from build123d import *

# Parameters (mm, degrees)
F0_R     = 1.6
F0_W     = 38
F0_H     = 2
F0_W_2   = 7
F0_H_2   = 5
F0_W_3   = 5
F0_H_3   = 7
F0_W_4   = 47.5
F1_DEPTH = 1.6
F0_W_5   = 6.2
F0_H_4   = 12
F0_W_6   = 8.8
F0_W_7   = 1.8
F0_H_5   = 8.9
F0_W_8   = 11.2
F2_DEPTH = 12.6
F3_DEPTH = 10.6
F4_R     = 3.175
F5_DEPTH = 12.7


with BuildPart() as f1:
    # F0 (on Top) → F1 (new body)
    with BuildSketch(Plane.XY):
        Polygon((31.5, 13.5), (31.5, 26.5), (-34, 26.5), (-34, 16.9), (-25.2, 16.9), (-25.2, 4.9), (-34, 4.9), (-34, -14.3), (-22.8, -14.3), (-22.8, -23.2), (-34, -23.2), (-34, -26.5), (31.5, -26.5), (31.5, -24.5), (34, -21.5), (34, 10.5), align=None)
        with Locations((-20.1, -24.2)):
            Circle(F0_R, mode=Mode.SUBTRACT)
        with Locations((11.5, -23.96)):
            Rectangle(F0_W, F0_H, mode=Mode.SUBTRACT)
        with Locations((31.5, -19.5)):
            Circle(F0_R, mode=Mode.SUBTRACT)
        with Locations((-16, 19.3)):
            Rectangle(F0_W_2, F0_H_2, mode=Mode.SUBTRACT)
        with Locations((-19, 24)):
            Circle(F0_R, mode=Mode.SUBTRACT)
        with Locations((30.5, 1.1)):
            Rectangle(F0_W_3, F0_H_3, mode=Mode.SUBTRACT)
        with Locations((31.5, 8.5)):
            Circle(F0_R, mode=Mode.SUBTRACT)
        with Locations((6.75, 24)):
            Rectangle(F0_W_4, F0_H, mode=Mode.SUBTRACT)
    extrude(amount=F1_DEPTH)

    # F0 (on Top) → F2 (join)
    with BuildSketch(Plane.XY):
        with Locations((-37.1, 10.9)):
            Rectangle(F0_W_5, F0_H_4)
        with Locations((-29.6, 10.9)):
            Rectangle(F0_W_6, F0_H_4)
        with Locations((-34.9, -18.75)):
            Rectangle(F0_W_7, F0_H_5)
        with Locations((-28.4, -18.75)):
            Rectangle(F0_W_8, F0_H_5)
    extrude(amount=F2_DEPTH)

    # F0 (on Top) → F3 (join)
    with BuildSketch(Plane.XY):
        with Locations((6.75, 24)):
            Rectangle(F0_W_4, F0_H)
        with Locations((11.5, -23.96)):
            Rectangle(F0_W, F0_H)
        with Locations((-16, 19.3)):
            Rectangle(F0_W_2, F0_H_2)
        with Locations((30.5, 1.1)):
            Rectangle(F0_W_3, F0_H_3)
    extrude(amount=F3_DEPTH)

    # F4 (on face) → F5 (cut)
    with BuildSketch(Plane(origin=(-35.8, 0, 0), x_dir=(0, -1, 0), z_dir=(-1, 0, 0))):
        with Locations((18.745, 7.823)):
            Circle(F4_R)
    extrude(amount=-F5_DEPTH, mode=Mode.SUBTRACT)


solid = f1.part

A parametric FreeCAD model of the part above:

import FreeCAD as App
import Part
import Sketcher

V = App.Vector
Q = App.Units.Quantity

doc = App.newDocument("Part")
body = doc.addObject("PartDesign::Body", "Body")

# Sketch on XY plane
sketch1 = body.newObject("Sketcher::SketchObject", "Sketch")
sketch1.AttachmentSupport = (doc.getObject("XY_Plane"), [""])
sketch1.MapMode = "FlatFace"
sketch1.addGeometry(Part.LineSegment(V(31.5, 13.5, 0), V(31.5, 26.5, 0)), False)
sketch1.addGeometry(Part.LineSegment(V(31.5, 26.5, 0), V(-34, 26.5, 0)), False)
sketch1.addGeometry(Part.LineSegment(V(-34, 26.5, 0), V(-34, 16.9, 0)), False)
sketch1.addGeometry(Part.LineSegment(V(-34, 16.9, 0), V(-25.2, 16.9, 0)), False)
sketch1.addGeometry(Part.LineSegment(V(-25.2, 16.9, 0), V(-25.2, 4.9, 0)), False)
sketch1.addGeometry(Part.LineSegment(V(-25.2, 4.9, 0), V(-34, 4.9, 0)), False)
sketch1.addGeometry(Part.LineSegment(V(-34, 4.9, 0), V(-34, -14.3, 0)), False)
sketch1.addGeometry(Part.LineSegment(V(-34, -14.3, 0), V(-22.8, -14.3, 0)), False)
sketch1.addGeometry(Part.LineSegment(V(-22.8, -14.3, 0), V(-22.8, -23.2, 0)), False)
sketch1.addGeometry(Part.LineSegment(V(-22.8, -23.2, 0), V(-34, -23.2, 0)), False)
sketch1.addGeometry(Part.LineSegment(V(-34, -23.2, 0), V(-34, -26.5, 0)), False)
sketch1.addGeometry(Part.LineSegment(V(-34, -26.5, 0), V(31.5, -26.5, 0)), False)
sketch1.addGeometry(Part.LineSegment(V(31.5, -26.5, 0), V(31.5, -24.5, 0)), False)
sketch1.addGeometry(Part.LineSegment(V(31.5, -24.5, 0), V(34, -21.5, 0)), False)
sketch1.addGeometry(Part.LineSegment(V(34, -21.5, 0), V(34, 10.5, 0)), False)
sketch1.addGeometry(Part.LineSegment(V(34, 10.5, 0), V(31.5, 13.5, 0)), False)
sketch1.addGeometry(Part.Circle(V(-20.1, -24.2, 0), V(0, 0, 1), 1.6), False)
sketch1.addGeometry(Part.LineSegment(V(30.5, -25, 0), V(-7.5, -25, 0)), False)
sketch1.addGeometry(Part.LineSegment(V(-7.5, -25, 0), V(-7.5, -23, 0)), False)
sketch1.addGeometry(Part.LineSegment(V(-7.5, -23, 0), V(30.5, -23, 0)), False)
sketch1.addGeometry(Part.LineSegment(V(30.5, -23, 0), V(30.5, -25, 0)), False)
sketch1.addGeometry(Part.Circle(V(31.5, -19.5, 0), V(0, 0, 1), 1.6), False)
sketch1.addGeometry(Part.LineSegment(V(-12.5, 16.8, 0), V(-19.5, 16.8, 0)), False)
sketch1.addGeometry(Part.LineSegment(V(-19.5, 16.8, 0), V(-19.5, 21.8, 0)), False)
sketch1.addGeometry(Part.LineSegment(V(-19.5, 21.8, 0), V(-12.5, 21.8, 0)), False)
sketch1.addGeometry(Part.LineSegment(V(-12.5, 21.8, 0), V(-12.5, 16.8, 0)), False)
sketch1.addGeometry(Part.Circle(V(-19, 24, 0), V(0, 0, 1), 1.6), False)
sketch1.addGeometry(Part.LineSegment(V(33, -2.4, 0), V(28, -2.4, 0)), False)
sketch1.addGeometry(Part.LineSegment(V(28, -2.4, 0), V(28, 4.6, 0)), False)
sketch1.addGeometry(Part.LineSegment(V(28, 4.6, 0), V(33, 4.6, 0)), False)
sketch1.addGeometry(Part.LineSegment(V(33, 4.6, 0), V(33, -2.4, 0)), False)
sketch1.addGeometry(Part.Circle(V(31.5, 8.5, 0), V(0, 0, 1), 1.6), False)
sketch1.addGeometry(Part.LineSegment(V(30.5, 23, 0), V(-17, 23, 0)), False)
sketch1.addGeometry(Part.LineSegment(V(-17, 23, 0), V(-17, 25, 0)), False)
sketch1.addGeometry(Part.LineSegment(V(-17, 25, 0), V(30.5, 25, 0)), False)
sketch1.addGeometry(Part.LineSegment(V(30.5, 25, 0), V(30.5, 23, 0)), False)
sketch1.addConstraint(Sketcher.Constraint("Coincident", 0, 2, 1, 1))
sketch1.addConstraint(Sketcher.Constraint("Coincident", 1, 2, 2, 1))
sketch1.addConstraint(Sketcher.Constraint("Coincident", 2, 2, 3, 1))
sketch1.addConstraint(Sketcher.Constraint("Coincident", 3, 2, 4, 1))
sketch1.addConstraint(Sketcher.Constraint("Coincident", 4, 2, 5, 1))
sketch1.addConstraint(Sketcher.Constraint("Coincident", 5, 2, 6, 1))
sketch1.addConstraint(Sketcher.Constraint("Coincident", 6, 2, 7, 1))
sketch1.addConstraint(Sketcher.Constraint("Coincident", 7, 2, 8, 1))
sketch1.addConstraint(Sketcher.Constraint("Coincident", 8, 2, 9, 1))
sketch1.addConstraint(Sketcher.Constraint("Coincident", 9, 2, 10, 1))
sketch1.addConstraint(Sketcher.Constraint("Coincident", 10, 2, 11, 1))
sketch1.addConstraint(Sketcher.Constraint("Coincident", 11, 2, 12, 1))
sketch1.addConstraint(Sketcher.Constraint("Coincident", 12, 2, 13, 1))
sketch1.addConstraint(Sketcher.Constraint("Coincident", 13, 2, 14, 1))
sketch1.addConstraint(Sketcher.Constraint("Coincident", 14, 2, 15, 1))
sketch1.addConstraint(Sketcher.Constraint("Coincident", 15, 2, 0, 1))
sketch1.addConstraint(Sketcher.Constraint("Coincident", 17, 2, 18, 1))
sketch1.addConstraint(Sketcher.Constraint("Coincident", 18, 2, 19, 1))
sketch1.addConstraint(Sketcher.Constraint("Coincident", 19, 2, 20, 1))
sketch1.addConstraint(Sketcher.Constraint("Coincident", 20, 2, 17, 1))
sketch1.addConstraint(Sketcher.Constraint("Coincident", 22, 2, 23, 1))
sketch1.addConstraint(Sketcher.Constraint("Coincident", 23, 2, 24, 1))
sketch1.addConstraint(Sketcher.Constraint("Coincident", 24, 2, 25, 1))
sketch1.addConstraint(Sketcher.Constraint("Coincident", 25, 2, 22, 1))
sketch1.addConstraint(Sketcher.Constraint("Coincident", 27, 2, 28, 1))
sketch1.addConstraint(Sketcher.Constraint("Coincident", 28, 2, 29, 1))
sketch1.addConstraint(Sketcher.Constraint("Coincident", 29, 2, 30, 1))
sketch1.addConstraint(Sketcher.Constraint("Coincident", 30, 2, 27, 1))
sketch1.addConstraint(Sketcher.Constraint("Coincident", 32, 2, 33, 1))
sketch1.addConstraint(Sketcher.Constraint("Coincident", 33, 2, 34, 1))
sketch1.addConstraint(Sketcher.Constraint("Coincident", 34, 2, 35, 1))
sketch1.addConstraint(Sketcher.Constraint("Coincident", 35, 2, 32, 1))
sketch1.addConstraint(Sketcher.Constraint("Vertical", 0))
sketch1.addConstraint(Sketcher.Constraint("Horizontal", 1))
sketch1.addConstraint(Sketcher.Constraint("Vertical", 2))
sketch1.addConstraint(Sketcher.Constraint("Horizontal", 3))
sketch1.addConstraint(Sketcher.Constraint("Vertical", 4))
sketch1.addConstraint(Sketcher.Constraint("Horizontal", 5))
sketch1.addConstraint(Sketcher.Constraint("Vertical", 6))
sketch1.addConstraint(Sketcher.Constraint("Horizontal", 7))
sketch1.addConstraint(Sketcher.Constraint("Vertical", 8))
sketch1.addConstraint(Sketcher.Constraint("Horizontal", 9))
sketch1.addConstraint(Sketcher.Constraint("Vertical", 10))
sketch1.addConstraint(Sketcher.Constraint("Horizontal", 11))
sketch1.addConstraint(Sketcher.Constraint("Vertical", 12))
sketch1.addConstraint(Sketcher.Constraint("Vertical", 14))
sketch1.addConstraint(Sketcher.Constraint("Horizontal", 17))
sketch1.addConstraint(Sketcher.Constraint("Vertical", 18))
sketch1.addConstraint(Sketcher.Constraint("Horizontal", 19))
sketch1.addConstraint(Sketcher.Constraint("Vertical", 20))
sketch1.addConstraint(Sketcher.Constraint("Horizontal", 22))
sketch1.addConstraint(Sketcher.Constraint("Vertical", 23))
sketch1.addConstraint(Sketcher.Constraint("Horizontal", 24))
sketch1.addConstraint(Sketcher.Constraint("Vertical", 25))
sketch1.addConstraint(Sketcher.Constraint("Horizontal", 27))
sketch1.addConstraint(Sketcher.Constraint("Vertical", 28))
sketch1.addConstraint(Sketcher.Constraint("Horizontal", 29))
sketch1.addConstraint(Sketcher.Constraint("Vertical", 30))
sketch1.addConstraint(Sketcher.Constraint("Horizontal", 32))
sketch1.addConstraint(Sketcher.Constraint("Vertical", 33))
sketch1.addConstraint(Sketcher.Constraint("Horizontal", 34))
sketch1.addConstraint(Sketcher.Constraint("Vertical", 35))
sketch1.addConstraint(Sketcher.Constraint("Equal", 16, 21))
sketch1.addConstraint(Sketcher.Constraint("Equal", 21, 26))
sketch1.addConstraint(Sketcher.Constraint("Equal", 26, 31))
sketch1.addConstraint(Sketcher.Constraint("Symmetric", 1, 2, 10, 2, -1))
sketch1.addConstraint(Sketcher.Constraint("Vertical", 21, 3, 31, 3))
sketch1.addConstraint(Sketcher.Constraint("Vertical", 31, 3, 0, 2))
sketch1.addConstraint(Sketcher.Constraint("Vertical", 2, 2, 5, 2))
sketch1.addConstraint(Sketcher.Constraint("Vertical", 0, 2, 11, 2))
sketch1.addConstraint(Sketcher.Constraint("Vertical", 20, 2, 34, 2))
sketch1.addConstraint(Sketcher.Constraint("Equal", 12, 18))
sketch1.addConstraint(Sketcher.Constraint("Equal", 29, 23))
sketch1.addConstraint(Sketcher.Constraint("Equal", 24, 28))
sketch1.addConstraint(Sketcher.Constraint("Equal", 20, 33))
sketch1.addConstraint(Sketcher.Constraint("Equal", 13, 15))
sketch1.addConstraint(Sketcher.Constraint("Diameter", 16, Q("3.2 mm")))
sketch1.addConstraint(Sketcher.Constraint("DistanceX", 17, 2, 17, 1, Q("38 mm")))
sketch1.addConstraint(Sketcher.Constraint("DistanceX", 22, 2, 22, 1, Q("7 mm")))
sketch1.addConstraint(Sketcher.Constraint("DistanceX", 27, 2, 27, 1, Q("5 mm")))
sketch1.addConstraint(Sketcher.Constraint("DistanceY", 0, 1, 0, 2, Q("13 mm")))
sketch1.addConstraint(Sketcher.Constraint("DistanceY", 4, 2, 4, 1, Q("12 mm")))
sketch1.addConstraint(Sketcher.Constraint("DistanceY", 12, 1, 12, 2, Q("2 mm")))
sketch1.addConstraint(Sketcher.Constraint("DistanceY", 14, 1, 14, 2, Q("32 mm")))
sketch1.addConstraint(Sketcher.Constraint("DistanceX", 1, 2, 1, 1, Q("65.5 mm")))
sketch1.addConstraint(Sketcher.Constraint("DistanceX", 3, 1, 3, 2, Q("8.8 mm")))
sketch1.addConstraint(Sketcher.Constraint("DistanceX", 7, 1, 7, 2, Q("11.2 mm")))
sketch1.addConstraint(Sketcher.Constraint("DistanceX", 32, 2, 32, 1, Q("47.5 mm")))
sketch1.addConstraint(Sketcher.Constraint("DistanceY", 2, 2, 2, 1, Q("9.6 mm")))
sketch1.addConstraint(Sketcher.Constraint("DistanceY", 6, 2, 6, 1, Q("19.2 mm")))
sketch1.addConstraint(Sketcher.Constraint("DistanceY", 8, 2, 8, 1, Q("8.9 mm")))
sketch1.addConstraint(Sketcher.Constraint("DistanceY", 10, 2, 10, 1, Q("3.3 mm")))
sketch1.addConstraint(Sketcher.Constraint("DistanceX", 26, 3, -1, 1, Q("19 mm")))
sketch1.addConstraint(Sketcher.Constraint("DistanceY", -1, 1, 26, 3, Q("24 mm")))
sketch1.addConstraint(Sketcher.Constraint("DistanceX", 1, 2, -1, 1, Q("34 mm")))
sketch1.addConstraint(Sketcher.Constraint("DistanceX", -1, 1, 13, 2, Q("34 mm")))
sketch1.addConstraint(Sketcher.Constraint("DistanceX", -1, 1, 27, 2, Q("28 mm")))
sketch1.addConstraint(Sketcher.Constraint("DistanceX", 32, 2, -1, 1, Q("17 mm")))
sketch1.addConstraint(Sketcher.Constraint("DistanceY", -1, 1, 32, 2, Q("23 mm")))
sketch1.addConstraint(Sketcher.Constraint("DistanceY", 21, 3, 31, 3, Q("28 mm")))
sketch1.addConstraint(Sketcher.Constraint("DistanceY", 31, 3, 0, 2, Q("18 mm")))
sketch1.addConstraint(Sketcher.Constraint("DistanceY", 16, 3, 8, 2, Q("1 mm")))
sketch1.addConstraint(Sketcher.Constraint("DistanceX", 16, 3, -1, 1, Q("20.1 mm")))
sketch1.addConstraint(Sketcher.Constraint("DistanceX", 22, 2, -1, 1, Q("19.5 mm")))
sketch1.addConstraint(Sketcher.Constraint("DistanceY", -1, 1, 22, 2, Q("16.8 mm")))
sketch1.addConstraint(Sketcher.Constraint("DistanceY", 27, 2, -1, 1, Q("2.4 mm")))
sketch1.addConstraint(Sketcher.Constraint("DistanceY", 17, 2, -1, 1, Q("24.96 mm")))
pad1 = body.newObject("PartDesign::Pad", "Pad")
pad1.Profile = sketch1
pad1.Length = 1.6

# Sketch on XY plane
sketch2 = body.newObject("Sketcher::SketchObject", "Sketch001")
sketch2.AttachmentSupport = (doc.getObject("XY_Plane"), [""])
sketch2.MapMode = "FlatFace"
sketch2.addGeometry(Part.LineSegment(V(-40, 17, 0), V(-40, 5, 0)), False)
sketch2.addGeometry(Part.LineSegment(V(-40, 5, 0), V(-25, 5, 0)), False)
sketch2.addGeometry(Part.LineSegment(V(-25, 5, 0), V(-25, 17, 0)), False)
sketch2.addGeometry(Part.LineSegment(V(-25, 17, 0), V(-40, 17, 0)), False)
sketch2.addGeometry(Part.LineSegment(V(-36, -14, 0), V(-36, -23, 0)), False)
sketch2.addGeometry(Part.LineSegment(V(-36, -23, 0), V(-23, -23, 0)), False)
sketch2.addGeometry(Part.LineSegment(V(-23, -23, 0), V(-23, -14, 0)), False)
sketch2.addGeometry(Part.LineSegment(V(-23, -14, 0), V(-36, -14, 0)), False)
sketch2.addConstraint(Sketcher.Constraint("Coincident", 0, 2, 1, 1))
sketch2.addConstraint(Sketcher.Constraint("Coincident", 1, 2, 2, 1))
sketch2.addConstraint(Sketcher.Constraint("Coincident", 2, 2, 3, 1))
sketch2.addConstraint(Sketcher.Constraint("Coincident", 3, 2, 0, 1))
sketch2.addConstraint(Sketcher.Constraint("Coincident", 4, 2, 5, 1))
sketch2.addConstraint(Sketcher.Constraint("Coincident", 5, 2, 6, 1))
sketch2.addConstraint(Sketcher.Constraint("Coincident", 6, 2, 7, 1))
sketch2.addConstraint(Sketcher.Constraint("Coincident", 7, 2, 4, 1))
sketch2.addConstraint(Sketcher.Constraint("Vertical", 0))
sketch2.addConstraint(Sketcher.Constraint("Horizontal", 1))
sketch2.addConstraint(Sketcher.Constraint("Vertical", 2))
sketch2.addConstraint(Sketcher.Constraint("Horizontal", 3))
sketch2.addConstraint(Sketcher.Constraint("Vertical", 4))
sketch2.addConstraint(Sketcher.Constraint("Horizontal", 5))
sketch2.addConstraint(Sketcher.Constraint("Vertical", 6))
sketch2.addConstraint(Sketcher.Constraint("Horizontal", 7))
sketch2.addConstraint(Sketcher.Constraint("DistanceX", 1, 1, 1, 2, Q("15 mm")))
sketch2.addConstraint(Sketcher.Constraint("DistanceX", 5, 1, 5, 2, Q("13 mm")))
sketch2.addConstraint(Sketcher.Constraint("DistanceY", 0, 2, 0, 1, Q("12 mm")))
sketch2.addConstraint(Sketcher.Constraint("DistanceY", 4, 2, 4, 1, Q("8.9 mm")))
sketch2.addConstraint(Sketcher.Constraint("DistanceX", 0, 2, -1, 1, Q("40.2 mm")))
sketch2.addConstraint(Sketcher.Constraint("DistanceY", -1, 1, 0, 2, Q("4.9 mm")))
sketch2.addConstraint(Sketcher.Constraint("DistanceX", 4, 2, -1, 1, Q("35.8 mm")))
sketch2.addConstraint(Sketcher.Constraint("DistanceY", 4, 2, -1, 1, Q("23.2 mm")))
pad2 = body.newObject("PartDesign::Pad", "Pad001")
pad2.Profile = sketch2
pad2.Length = 12.6

# Sketch on XY plane
sketch3 = body.newObject("Sketcher::SketchObject", "Sketch002")
sketch3.AttachmentSupport = (doc.getObject("XY_Plane"), [""])
sketch3.MapMode = "FlatFace"
sketch3.addGeometry(Part.LineSegment(V(-17, 25, 0), V(-17, 23, 0)), False)
sketch3.addGeometry(Part.LineSegment(V(-17, 23, 0), V(30.5, 23, 0)), False)
sketch3.addGeometry(Part.LineSegment(V(30.5, 23, 0), V(30.5, 25, 0)), False)
sketch3.addGeometry(Part.LineSegment(V(30.5, 25, 0), V(-17, 25, 0)), False)
sketch3.addGeometry(Part.LineSegment(V(-7.5, -23, 0), V(-7.5, -25, 0)), False)
sketch3.addGeometry(Part.LineSegment(V(-7.5, -25, 0), V(30.5, -25, 0)), False)
sketch3.addGeometry(Part.LineSegment(V(30.5, -25, 0), V(30.5, -23, 0)), False)
sketch3.addGeometry(Part.LineSegment(V(30.5, -23, 0), V(-7.5, -23, 0)), False)
sketch3.addGeometry(Part.LineSegment(V(-19.5, 21.8, 0), V(-19.5, 16.8, 0)), False)
sketch3.addGeometry(Part.LineSegment(V(-19.5, 16.8, 0), V(-12.5, 16.8, 0)), False)
sketch3.addGeometry(Part.LineSegment(V(-12.5, 16.8, 0), V(-12.5, 21.8, 0)), False)
sketch3.addGeometry(Part.LineSegment(V(-12.5, 21.8, 0), V(-19.5, 21.8, 0)), False)
sketch3.addGeometry(Part.LineSegment(V(28, 4.6, 0), V(28, -2.4, 0)), False)
sketch3.addGeometry(Part.LineSegment(V(28, -2.4, 0), V(33, -2.4, 0)), False)
sketch3.addGeometry(Part.LineSegment(V(33, -2.4, 0), V(33, 4.6, 0)), False)
sketch3.addGeometry(Part.LineSegment(V(33, 4.6, 0), V(28, 4.6, 0)), False)
sketch3.addConstraint(Sketcher.Constraint("Coincident", 0, 2, 1, 1))
sketch3.addConstraint(Sketcher.Constraint("Coincident", 1, 2, 2, 1))
sketch3.addConstraint(Sketcher.Constraint("Coincident", 2, 2, 3, 1))
sketch3.addConstraint(Sketcher.Constraint("Coincident", 3, 2, 0, 1))
sketch3.addConstraint(Sketcher.Constraint("Coincident", 4, 2, 5, 1))
sketch3.addConstraint(Sketcher.Constraint("Coincident", 5, 2, 6, 1))
sketch3.addConstraint(Sketcher.Constraint("Coincident", 6, 2, 7, 1))
sketch3.addConstraint(Sketcher.Constraint("Coincident", 7, 2, 4, 1))
sketch3.addConstraint(Sketcher.Constraint("Coincident", 8, 2, 9, 1))
sketch3.addConstraint(Sketcher.Constraint("Coincident", 9, 2, 10, 1))
sketch3.addConstraint(Sketcher.Constraint("Coincident", 10, 2, 11, 1))
sketch3.addConstraint(Sketcher.Constraint("Coincident", 11, 2, 8, 1))
sketch3.addConstraint(Sketcher.Constraint("Coincident", 12, 2, 13, 1))
sketch3.addConstraint(Sketcher.Constraint("Coincident", 13, 2, 14, 1))
sketch3.addConstraint(Sketcher.Constraint("Coincident", 14, 2, 15, 1))
sketch3.addConstraint(Sketcher.Constraint("Coincident", 15, 2, 12, 1))
sketch3.addConstraint(Sketcher.Constraint("Vertical", 0))
sketch3.addConstraint(Sketcher.Constraint("Horizontal", 1))
sketch3.addConstraint(Sketcher.Constraint("Vertical", 2))
sketch3.addConstraint(Sketcher.Constraint("Horizontal", 3))
sketch3.addConstraint(Sketcher.Constraint("Vertical", 4))
sketch3.addConstraint(Sketcher.Constraint("Horizontal", 5))
sketch3.addConstraint(Sketcher.Constraint("Vertical", 6))
sketch3.addConstraint(Sketcher.Constraint("Horizontal", 7))
sketch3.addConstraint(Sketcher.Constraint("Vertical", 8))
sketch3.addConstraint(Sketcher.Constraint("Horizontal", 9))
sketch3.addConstraint(Sketcher.Constraint("Vertical", 10))
sketch3.addConstraint(Sketcher.Constraint("Horizontal", 11))
sketch3.addConstraint(Sketcher.Constraint("Vertical", 12))
sketch3.addConstraint(Sketcher.Constraint("Horizontal", 13))
sketch3.addConstraint(Sketcher.Constraint("Vertical", 14))
sketch3.addConstraint(Sketcher.Constraint("Horizontal", 15))
sketch3.addConstraint(Sketcher.Constraint("Vertical", 2, 2, 5, 2))
sketch3.addConstraint(Sketcher.Constraint("Equal", 2, 4))
sketch3.addConstraint(Sketcher.Constraint("Equal", 15, 8))
sketch3.addConstraint(Sketcher.Constraint("Equal", 11, 12))
sketch3.addConstraint(Sketcher.Constraint("DistanceX", 5, 1, 5, 2, Q("38 mm")))
sketch3.addConstraint(Sketcher.Constraint("DistanceX", 9, 1, 9, 2, Q("7 mm")))
sketch3.addConstraint(Sketcher.Constraint("DistanceX", 13, 1, 13, 2, Q("5 mm")))
sketch3.addConstraint(Sketcher.Constraint("DistanceY", 0, 2, 0, 1, Q("2 mm")))
sketch3.addConstraint(Sketcher.Constraint("DistanceX", 1, 1, 1, 2, Q("47.5 mm")))
sketch3.addConstraint(Sketcher.Constraint("DistanceX", 0, 2, -1, 1, Q("17 mm")))
sketch3.addConstraint(Sketcher.Constraint("DistanceY", -1, 1, 0, 2, Q("23 mm")))
sketch3.addConstraint(Sketcher.Constraint("DistanceX", -1, 1, 12, 2, Q("28 mm")))
sketch3.addConstraint(Sketcher.Constraint("DistanceX", 8, 2, 7, 2, Q("12 mm")))
sketch3.addConstraint(Sketcher.Constraint("DistanceY", -1, 1, 8, 2, Q("16.8 mm")))
sketch3.addConstraint(Sketcher.Constraint("DistanceY", 12, 2, -1, 1, Q("2.4 mm")))
sketch3.addConstraint(Sketcher.Constraint("DistanceY", 4, 2, -1, 1, Q("24.96 mm")))
pad3 = body.newObject("PartDesign::Pad", "Pad002")
pad3.Profile = sketch3
pad3.Length = 10.6

# Sketch on YZ plane
sketch4 = body.newObject("Sketcher::SketchObject", "Sketch003")
sketch4.AttachmentSupport = (doc.getObject("YZ_Plane"), [""])
sketch4.MapMode = "FlatFace"
sketch4.AttachmentOffset = App.Placement(V(0, 0, -35.8), App.Rotation())
sketch4.addGeometry(Part.Circle(V(-18.7, 7.8, 0), V(0, 0, 1), 3.2), False)
sketch4.addConstraint(Sketcher.Constraint("Diameter", 0, Q("6.35 mm")))
sketch4.addConstraint(Sketcher.Constraint("DistanceX", 0, 3, -1, 1, Q("18.745 mm")))
sketch4.addConstraint(Sketcher.Constraint("DistanceY", -1, 1, 0, 3, Q("7.823 mm")))
pocket1 = body.newObject("PartDesign::Pocket", "Pocket")
pocket1.Profile = sketch4
pocket1.Length = 12.7
pocket1.Reversed = True

doc.recompute()
